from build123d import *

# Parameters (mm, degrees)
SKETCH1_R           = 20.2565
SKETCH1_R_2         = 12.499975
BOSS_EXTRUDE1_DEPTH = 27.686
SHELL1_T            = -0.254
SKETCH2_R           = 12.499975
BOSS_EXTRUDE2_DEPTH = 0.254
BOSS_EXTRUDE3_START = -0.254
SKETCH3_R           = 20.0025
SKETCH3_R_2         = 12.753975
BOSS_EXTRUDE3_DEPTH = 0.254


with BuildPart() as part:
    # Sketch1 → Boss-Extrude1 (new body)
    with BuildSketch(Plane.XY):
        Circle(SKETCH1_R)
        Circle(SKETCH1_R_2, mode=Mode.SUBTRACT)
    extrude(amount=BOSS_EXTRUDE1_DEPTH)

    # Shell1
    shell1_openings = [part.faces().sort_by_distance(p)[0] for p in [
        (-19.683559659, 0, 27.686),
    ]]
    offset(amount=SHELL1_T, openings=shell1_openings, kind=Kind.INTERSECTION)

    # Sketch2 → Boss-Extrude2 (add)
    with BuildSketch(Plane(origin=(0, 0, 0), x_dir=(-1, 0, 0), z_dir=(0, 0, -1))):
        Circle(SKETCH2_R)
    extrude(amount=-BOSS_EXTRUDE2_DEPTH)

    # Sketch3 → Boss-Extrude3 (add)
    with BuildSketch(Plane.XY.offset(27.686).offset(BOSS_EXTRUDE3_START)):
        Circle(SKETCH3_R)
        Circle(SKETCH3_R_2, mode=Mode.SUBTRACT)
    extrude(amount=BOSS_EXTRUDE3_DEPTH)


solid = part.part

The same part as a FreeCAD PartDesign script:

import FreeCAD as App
import Part
import Sketcher
from FreeCAD import Vector
Q = App.Units.Quantity


def faces_at(feature, points):
    """Names of the faces that lie closest to the given points."""
    faces = feature.Shape.Faces
    near = lambda p: min(range(len(faces)), key=lambda i: faces[i].distToShape(Part.Vertex(*p))[0])
    return sorted({f"Face{near(p) + 1}" for p in points})

doc = App.newDocument("Part")
body = doc.addObject("PartDesign::Body", "Body")

sketch1 = doc.addObject("Sketcher::SketchObject", "Sketch")
body.addObject(sketch1)
sketch1.AttachmentSupport = (doc.XY_Plane, [""])
sketch1.MapMode = "FlatFace"
sketch1.addGeometry([
    Part.Circle(Vector(0, 0, 0), Vector(0, 0, 1), 20),
    Part.Circle(Vector(0, 0, 0), Vector(0, 0, 1), 12),
], False)
sketch1.addConstraint([
    Sketcher.Constraint("Coincident", 0, 3, -1, 1),
    Sketcher.Constraint("Coincident", 1, 3, -1, 1),
    Sketcher.Constraint("Diameter", 0, Q("1.595 in")),
    Sketcher.Constraint("Diameter", 1, 24.99995),
])
pad1 = doc.addObject("PartDesign::Pad", "Pad")
body.addObject(pad1)
pad1.Profile = sketch1
pad1.Length = Q("1.09 in")
doc.recompute()

thickness = doc.addObject("PartDesign::Thickness", "Thickness")
body.addObject(thickness)
thickness.Base = (pad1, faces_at(pad1, [(-16.205, 0, 27.686)]))
thickness.Value = Q("0.01 in")
thickness.Reversed = True
thickness.Join = "Intersection"

sketch2 = doc.addObject("Sketcher::SketchObject", "Sketch001")
body.addObject(sketch2)
sketch2.AttachmentSupport = (doc.XY_Plane, [""])
sketch2.MapMode = "FlatFace"
sketch2.addGeometry(Part.Circle(Vector(0, 0, 0), Vector(0, 0, 1), 12), False)
sketch2.addConstraint([
    Sketcher.Constraint("Coincident", 0, 3, -1, 1),
    Sketcher.Constraint("Diameter", 0, 24.99995),
])
pad2 = doc.addObject("PartDesign::Pad", "Pad001")
body.addObject(pad2)
pad2.Profile = sketch2
pad2.Length = Q("0.01 in")

sketch3 = doc.addObject("Sketcher::SketchObject", "Sketch002")
body.addObject(sketch3)
sketch3.AttachmentSupport = (doc.XY_Plane, [""])
sketch3.MapMode = "FlatFace"
sketch3.AttachmentOffset = App.Placement(Vector(0, 0, 1.08 * 25.4), App.Rotation())
sketch3.addGeometry([
    Part.Circle(Vector(0, 0, 0), Vector(0, 0, 1), 20),
    Part.Circle(Vector(0, 0, 0), Vector(0, 0, 1), 13),
], False)
sketch3.addConstraint([
    Sketcher.Constraint("Coincident", 0, 3, -1, 1),
    Sketcher.Constraint("Coincident", 1, 3, -1, 1),
    Sketcher.Constraint("Diameter", 0, Q("1.575 in")),
    Sketcher.Constraint("Diameter", 1, 25.50795),
])
pad3 = doc.addObject("PartDesign::Pad", "Pad002")
body.addObject(pad3)
pad3.Profile = sketch3
pad3.Length = Q("0.01 in")

doc.recompute()
